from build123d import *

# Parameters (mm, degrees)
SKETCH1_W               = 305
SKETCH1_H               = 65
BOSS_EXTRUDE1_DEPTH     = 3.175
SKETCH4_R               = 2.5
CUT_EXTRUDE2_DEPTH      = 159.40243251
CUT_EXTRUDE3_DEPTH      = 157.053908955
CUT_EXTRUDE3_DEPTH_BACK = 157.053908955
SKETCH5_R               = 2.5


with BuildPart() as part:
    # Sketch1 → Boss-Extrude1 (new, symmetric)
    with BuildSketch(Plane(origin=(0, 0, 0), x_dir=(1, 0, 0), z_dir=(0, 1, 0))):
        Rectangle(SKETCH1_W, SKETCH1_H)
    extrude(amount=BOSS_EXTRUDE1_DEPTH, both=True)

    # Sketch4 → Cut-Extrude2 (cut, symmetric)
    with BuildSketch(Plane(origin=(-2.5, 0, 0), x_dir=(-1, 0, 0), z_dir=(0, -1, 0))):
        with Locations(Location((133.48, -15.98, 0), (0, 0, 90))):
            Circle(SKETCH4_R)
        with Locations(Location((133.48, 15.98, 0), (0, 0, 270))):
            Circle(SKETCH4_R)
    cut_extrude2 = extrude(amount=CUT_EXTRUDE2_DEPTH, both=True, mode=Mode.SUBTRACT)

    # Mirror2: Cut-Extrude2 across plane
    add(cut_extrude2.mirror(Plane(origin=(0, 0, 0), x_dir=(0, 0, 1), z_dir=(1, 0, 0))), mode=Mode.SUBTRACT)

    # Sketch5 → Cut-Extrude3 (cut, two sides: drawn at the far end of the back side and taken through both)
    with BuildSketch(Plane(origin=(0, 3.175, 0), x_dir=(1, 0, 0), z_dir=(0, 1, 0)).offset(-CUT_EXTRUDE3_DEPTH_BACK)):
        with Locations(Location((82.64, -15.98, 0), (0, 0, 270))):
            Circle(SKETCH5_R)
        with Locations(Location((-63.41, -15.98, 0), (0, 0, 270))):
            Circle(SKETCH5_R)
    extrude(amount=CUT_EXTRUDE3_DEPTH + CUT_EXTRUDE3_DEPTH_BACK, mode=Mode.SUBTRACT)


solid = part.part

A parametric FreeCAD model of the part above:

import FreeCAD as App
import Part
import Sketcher

V = App.Vector
Q = App.Units.Quantity

doc = App.newDocument("Part")
params = doc.addObject("Spreadsheet::Sheet", "Params")
for row, (alias, value) in enumerate([
    ("sketch1_width", "305 mm"),
    ("sketch1_height", "65 mm"),
    ("pad1_length", "6.35 mm"),
    ("sketch2_diameter", "5 mm"),
    ("pocket1_length", "318.804865 mm"),
    ("sketch3_diameter", "5 mm"),
], start=1):
    params.set(f"A{row}", alias)
    params.set(f"B{row}", "=" + value)
    params.setAlias(f"B{row}", alias)

body = doc.addObject("PartDesign::Body", "Body")

sketch1 = body.newObject("Sketcher::SketchObject", "Sketch")
sketch1.AttachmentSupport = (doc.getObject("XZ_Plane"), [""])
sketch1.MapMode = "FlatFace"
sketch1.addGeometry([
    Part.LineSegment(V(-152, -32, 0), V(-152, 32, 0)),
    Part.LineSegment(V(-152, 32, 0), V(152, 32, 0)),
    Part.LineSegment(V(152, 32, 0), V(152, -32, 0)),
    Part.LineSegment(V(152, -32, 0), V(-152, -32, 0)),
], False)
sketch1.addConstraint([
    Sketcher.Constraint("Coincident", 0, 2, 1, 1),
    Sketcher.Constraint("Coincident", 1, 2, 2, 1),
    Sketcher.Constraint("Coincident", 2, 2, 3, 1),
    Sketcher.Constraint("Coincident", 3, 2, 0, 1),
    Sketcher.Constraint("Vertical", 0),
    Sketcher.Constraint("Horizontal", 1),
    Sketcher.Constraint("Vertical", 2),
    Sketcher.Constraint("Horizontal", 3),
    Sketcher.Constraint("Symmetric", 0, 2, 2, 2, -1, 1),
    Sketcher.Constraint("DistanceX", 1, 1, 1, 2, Q("305 mm")),
    Sketcher.Constraint("DistanceY", 0, 1, 0, 2, Q("65 mm")),
])
sketch1.setExpression("Constraints[9]", "Params.sketch1_width")
sketch1.setExpression("Constraints[10]", "Params.sketch1_height")
pad1 = body.newObject("PartDesign::Pad", "Pad")
pad1.Profile = sketch1
pad1.setExpression("Length", "Params.pad1_length")
pad1.Midplane = True

sketch2 = body.newObject("Sketcher::SketchObject", "Sketch001")
sketch2.AttachmentSupport = (doc.getObject("XZ_Plane"), [""])
sketch2.MapMode = "FlatFace"
sketch2.addGeometry([
    Part.Circle(V(-136, 16, 0), V(0, 0, 1), 2.5),
    Part.Circle(V(-136, -16, 0), V(0, 0, 1), 2.5),
], False)
sketch2.addConstraint([
    Sketcher.Constraint("Equal", 0, 1),
    Sketcher.Constraint("Symmetric", 0, 3, 1, 3, -1),
    Sketcher.Constraint("Diameter", 0, Q("5 mm")),
    Sketcher.Constraint("DistanceX", 0, 3, -1, 1, Q("135.98 mm")),
    Sketcher.Constraint("DistanceY", -1, 1, 0, 3, Q("15.98 mm")),
])
sketch2.setExpression("Constraints[2]", "Params.sketch2_diameter")
pocket1 = body.newObject("PartDesign::Pocket", "Pocket")
pocket1.Profile = sketch2
pocket1.setExpression("Length", "Params.pocket1_length")
pocket1.Midplane = True
doc.recompute()

mirrored = body.newObject("PartDesign::Mirrored", "Mirrored")
mirrored.Originals = [pocket1]
mirrored.MirrorPlane = (doc.getObject("YZ_Plane"), [""])
body.Tip = mirrored

sketch3 = body.newObject("Sketcher::SketchObject", "Sketch002")
sketch3.AttachmentSupport = (doc.getObject("XZ_Plane"), [""])
sketch3.MapMode = "FlatFace"
sketch3.AttachmentOffset = App.Placement(V(0, 0, -3.175), App.Rotation())
sketch3.addGeometry([
    Part.Circle(V(82.6, 16, 0), V(0, 0, 1), 2.5),
    Part.Circle(V(-63.4, 16, 0), V(0, 0, 1), 2.5),
], False)
sketch3.addConstraint([
    Sketcher.Constraint("Equal", 0, 1),
    Sketcher.Constraint("Horizontal", 0, 3, 1, 3),
    Sketcher.Constraint("Diameter", 0, Q("5 mm")),
    Sketcher.Constraint("DistanceX", -1, 1, 0, 3, Q("82.64 mm")),
    Sketcher.Constraint("DistanceY", -1, 1, 0, 3, Q("15.98 mm")),
    Sketcher.Constraint("DistanceX", 1, 3, -1, 1, Q("63.41 mm")),
])
sketch3.setExpression("Constraints[2]", "Params.sketch3_diameter")
pocket2 = body.newObject("PartDesign::Pocket", "Pocket001")
pocket2.Profile = sketch3
pocket2.Type = "ThroughAll"
pocket2.Midplane = True

doc.recompute()
